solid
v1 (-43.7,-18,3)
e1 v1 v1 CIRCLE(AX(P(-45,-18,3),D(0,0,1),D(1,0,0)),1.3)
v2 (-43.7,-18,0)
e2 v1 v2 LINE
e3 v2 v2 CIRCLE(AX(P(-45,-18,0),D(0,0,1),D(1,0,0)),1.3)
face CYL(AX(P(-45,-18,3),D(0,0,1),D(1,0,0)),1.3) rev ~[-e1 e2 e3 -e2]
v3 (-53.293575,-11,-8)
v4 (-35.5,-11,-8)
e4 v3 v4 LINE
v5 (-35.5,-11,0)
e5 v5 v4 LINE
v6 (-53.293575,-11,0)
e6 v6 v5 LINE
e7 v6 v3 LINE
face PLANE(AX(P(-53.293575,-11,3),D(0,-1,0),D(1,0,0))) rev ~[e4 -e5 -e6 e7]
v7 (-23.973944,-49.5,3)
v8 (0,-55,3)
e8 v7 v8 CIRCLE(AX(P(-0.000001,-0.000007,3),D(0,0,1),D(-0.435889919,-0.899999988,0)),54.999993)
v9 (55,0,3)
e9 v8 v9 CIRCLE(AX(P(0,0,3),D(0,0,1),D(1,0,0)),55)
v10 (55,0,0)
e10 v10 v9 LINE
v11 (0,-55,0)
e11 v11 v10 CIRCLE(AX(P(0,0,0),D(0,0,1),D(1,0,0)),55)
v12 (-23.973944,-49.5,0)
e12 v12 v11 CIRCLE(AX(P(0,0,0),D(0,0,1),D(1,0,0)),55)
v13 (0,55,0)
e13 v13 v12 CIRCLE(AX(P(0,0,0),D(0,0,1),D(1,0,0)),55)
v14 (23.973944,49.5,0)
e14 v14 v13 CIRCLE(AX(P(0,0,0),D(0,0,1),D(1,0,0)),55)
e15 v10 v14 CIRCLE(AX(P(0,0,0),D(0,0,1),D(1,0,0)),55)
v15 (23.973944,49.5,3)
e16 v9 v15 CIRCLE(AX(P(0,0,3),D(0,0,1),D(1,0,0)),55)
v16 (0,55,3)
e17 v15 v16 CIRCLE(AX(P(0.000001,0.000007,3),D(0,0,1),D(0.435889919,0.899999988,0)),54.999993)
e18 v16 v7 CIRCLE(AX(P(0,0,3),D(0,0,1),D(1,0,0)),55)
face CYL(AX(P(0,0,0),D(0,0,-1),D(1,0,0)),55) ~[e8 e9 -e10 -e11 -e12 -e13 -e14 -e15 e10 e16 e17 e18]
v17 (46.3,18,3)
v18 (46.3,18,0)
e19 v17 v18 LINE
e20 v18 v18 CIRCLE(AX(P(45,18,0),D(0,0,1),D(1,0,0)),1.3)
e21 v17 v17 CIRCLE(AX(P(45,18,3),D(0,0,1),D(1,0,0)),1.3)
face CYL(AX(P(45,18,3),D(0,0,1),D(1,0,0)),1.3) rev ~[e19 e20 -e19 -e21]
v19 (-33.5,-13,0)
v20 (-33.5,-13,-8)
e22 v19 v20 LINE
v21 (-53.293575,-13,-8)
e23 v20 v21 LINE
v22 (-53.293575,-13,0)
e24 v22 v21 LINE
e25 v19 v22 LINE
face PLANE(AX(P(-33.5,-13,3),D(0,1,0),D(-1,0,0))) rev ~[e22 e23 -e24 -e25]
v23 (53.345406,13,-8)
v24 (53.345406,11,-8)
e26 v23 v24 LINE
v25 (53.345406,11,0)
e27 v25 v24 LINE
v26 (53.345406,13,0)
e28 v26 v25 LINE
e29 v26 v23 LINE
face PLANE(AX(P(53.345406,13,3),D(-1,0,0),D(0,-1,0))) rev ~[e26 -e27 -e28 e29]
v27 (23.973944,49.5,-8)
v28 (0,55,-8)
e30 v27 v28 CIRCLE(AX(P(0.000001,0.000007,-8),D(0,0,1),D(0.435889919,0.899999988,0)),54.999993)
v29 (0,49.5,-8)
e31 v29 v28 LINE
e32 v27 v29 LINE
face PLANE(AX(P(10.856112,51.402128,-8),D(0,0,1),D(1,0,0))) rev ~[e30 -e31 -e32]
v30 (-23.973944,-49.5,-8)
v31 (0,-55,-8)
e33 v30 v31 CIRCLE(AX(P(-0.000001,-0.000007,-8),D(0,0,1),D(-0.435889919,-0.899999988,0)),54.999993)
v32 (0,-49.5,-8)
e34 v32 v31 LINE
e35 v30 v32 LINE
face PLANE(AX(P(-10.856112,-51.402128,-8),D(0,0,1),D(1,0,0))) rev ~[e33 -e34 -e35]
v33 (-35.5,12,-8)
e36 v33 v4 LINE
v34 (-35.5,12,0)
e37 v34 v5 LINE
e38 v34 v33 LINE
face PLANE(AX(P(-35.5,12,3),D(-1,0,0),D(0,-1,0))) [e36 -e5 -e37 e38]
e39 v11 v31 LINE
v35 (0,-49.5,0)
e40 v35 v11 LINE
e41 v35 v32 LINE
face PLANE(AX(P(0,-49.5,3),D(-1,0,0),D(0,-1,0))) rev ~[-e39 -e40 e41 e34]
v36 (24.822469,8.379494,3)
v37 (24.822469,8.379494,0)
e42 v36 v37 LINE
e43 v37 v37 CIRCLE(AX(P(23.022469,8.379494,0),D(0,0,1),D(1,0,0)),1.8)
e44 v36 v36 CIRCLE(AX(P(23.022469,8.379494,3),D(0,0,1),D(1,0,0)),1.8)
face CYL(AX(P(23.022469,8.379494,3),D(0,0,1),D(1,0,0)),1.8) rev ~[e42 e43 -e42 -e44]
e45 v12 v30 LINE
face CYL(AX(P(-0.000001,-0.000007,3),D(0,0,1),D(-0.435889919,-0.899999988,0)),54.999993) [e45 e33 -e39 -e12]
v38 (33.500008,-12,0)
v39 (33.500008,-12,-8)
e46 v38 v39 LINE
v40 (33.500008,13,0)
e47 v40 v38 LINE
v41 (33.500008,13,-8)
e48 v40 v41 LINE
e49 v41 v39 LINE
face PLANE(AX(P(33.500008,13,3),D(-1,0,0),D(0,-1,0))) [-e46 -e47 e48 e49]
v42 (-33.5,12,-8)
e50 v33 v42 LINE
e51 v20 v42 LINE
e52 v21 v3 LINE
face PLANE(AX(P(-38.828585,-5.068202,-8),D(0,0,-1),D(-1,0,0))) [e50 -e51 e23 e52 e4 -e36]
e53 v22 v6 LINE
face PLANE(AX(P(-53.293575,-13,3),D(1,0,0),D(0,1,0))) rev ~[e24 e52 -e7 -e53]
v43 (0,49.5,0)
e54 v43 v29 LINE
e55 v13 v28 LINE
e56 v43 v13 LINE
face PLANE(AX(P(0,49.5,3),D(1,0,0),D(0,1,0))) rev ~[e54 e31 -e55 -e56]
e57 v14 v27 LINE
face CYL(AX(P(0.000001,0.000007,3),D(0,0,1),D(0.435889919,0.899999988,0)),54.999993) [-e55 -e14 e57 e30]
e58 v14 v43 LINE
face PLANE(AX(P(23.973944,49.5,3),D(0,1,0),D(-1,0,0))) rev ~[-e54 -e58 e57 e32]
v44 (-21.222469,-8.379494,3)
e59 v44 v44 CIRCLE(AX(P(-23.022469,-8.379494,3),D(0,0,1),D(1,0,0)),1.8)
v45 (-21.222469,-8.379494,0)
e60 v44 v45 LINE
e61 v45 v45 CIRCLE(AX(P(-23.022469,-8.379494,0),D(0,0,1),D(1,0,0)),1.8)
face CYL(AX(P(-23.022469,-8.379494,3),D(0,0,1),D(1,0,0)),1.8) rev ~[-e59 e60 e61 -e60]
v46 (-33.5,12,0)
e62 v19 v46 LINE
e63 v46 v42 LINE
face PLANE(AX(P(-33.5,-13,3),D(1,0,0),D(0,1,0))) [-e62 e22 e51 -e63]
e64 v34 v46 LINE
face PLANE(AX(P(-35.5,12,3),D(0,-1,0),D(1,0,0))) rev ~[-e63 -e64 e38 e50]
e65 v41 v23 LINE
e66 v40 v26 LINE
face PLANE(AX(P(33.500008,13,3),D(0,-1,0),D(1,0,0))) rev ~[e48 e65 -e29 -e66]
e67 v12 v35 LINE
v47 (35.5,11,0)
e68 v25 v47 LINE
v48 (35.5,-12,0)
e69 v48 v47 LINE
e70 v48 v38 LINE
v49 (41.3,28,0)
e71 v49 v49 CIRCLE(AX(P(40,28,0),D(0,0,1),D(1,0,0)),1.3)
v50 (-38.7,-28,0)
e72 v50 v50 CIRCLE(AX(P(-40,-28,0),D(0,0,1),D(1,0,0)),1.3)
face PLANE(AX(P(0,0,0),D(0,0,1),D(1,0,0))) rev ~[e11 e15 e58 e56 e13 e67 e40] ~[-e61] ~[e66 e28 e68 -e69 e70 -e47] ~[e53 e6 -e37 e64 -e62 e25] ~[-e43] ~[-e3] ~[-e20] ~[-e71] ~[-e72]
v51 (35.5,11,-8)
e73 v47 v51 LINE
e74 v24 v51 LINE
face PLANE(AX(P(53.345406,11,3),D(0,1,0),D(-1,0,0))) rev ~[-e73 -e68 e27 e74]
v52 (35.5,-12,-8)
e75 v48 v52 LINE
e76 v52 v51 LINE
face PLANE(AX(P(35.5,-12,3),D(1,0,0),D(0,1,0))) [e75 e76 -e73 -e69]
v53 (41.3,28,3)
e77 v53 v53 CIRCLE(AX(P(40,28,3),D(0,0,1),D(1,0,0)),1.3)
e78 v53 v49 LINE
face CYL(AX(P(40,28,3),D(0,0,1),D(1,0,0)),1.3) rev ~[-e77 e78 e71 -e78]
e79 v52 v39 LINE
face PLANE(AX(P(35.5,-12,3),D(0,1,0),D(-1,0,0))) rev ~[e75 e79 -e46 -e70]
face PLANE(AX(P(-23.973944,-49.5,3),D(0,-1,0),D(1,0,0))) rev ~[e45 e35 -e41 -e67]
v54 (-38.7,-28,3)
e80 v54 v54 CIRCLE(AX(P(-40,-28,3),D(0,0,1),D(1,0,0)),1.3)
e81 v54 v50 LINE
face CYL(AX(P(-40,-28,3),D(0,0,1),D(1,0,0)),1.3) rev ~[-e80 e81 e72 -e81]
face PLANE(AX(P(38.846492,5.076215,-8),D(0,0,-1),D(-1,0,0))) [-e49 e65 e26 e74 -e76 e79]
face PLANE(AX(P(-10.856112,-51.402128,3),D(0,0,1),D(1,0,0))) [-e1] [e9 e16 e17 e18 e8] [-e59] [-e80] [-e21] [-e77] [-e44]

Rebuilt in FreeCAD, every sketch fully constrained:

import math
import FreeCAD as App
import Part
import Sketcher
from FreeCAD import Vector

doc = App.newDocument("Part")
params = doc.addObject("Spreadsheet::Sheet", "Params")
for row, (alias, value) in enumerate([
    ("sketch1_diameter", "110 mm"),
    ("pad1_length", "3 mm"),
    ("sketch2_diameter", "2.6 mm"),
    ("sketch2_diameter2", "3.6 mm"),
    ("pocket1_length", "5 mm"),
    ("sketch3_width", "2 mm"),
    ("sketch3_height", "25 mm"),
    ("pad2_length", "11 mm"),
    ("sketch4_height", "5.5 mm"),
    ("pad3_length", "11 mm"),
], start=1):
    params.set(f"A{row}", alias)
    params.set(f"B{row}", "=" + value)
    params.setAlias(f"B{row}", alias)

body = doc.addObject("PartDesign::Body", "Body")

# Sketch on XY plane
sketch1 = doc.addObject("Sketcher::SketchObject", "Sketch")
body.addObject(sketch1)
sketch1.AttachmentSupport = (doc.XY_Plane, [""])
sketch1.MapMode = "FlatFace"
sketch1.addGeometry(Part.Circle(Vector(0, 0, 0), Vector(0, 0, 1), 55), False)
sketch1.addConstraint([
    Sketcher.Constraint("Coincident", 0, 3, -1, 1),
    Sketcher.Constraint("Diameter", 0, 110.0),
])
sketch1.setExpression("Constraints[1]", "Params.sketch1_diameter")
pad1 = doc.addObject("PartDesign::Pad", "Pad")
body.addObject(pad1)
pad1.Profile = sketch1
pad1.setExpression("Length", "Params.pad1_length")

# Sketch on XY plane
sketch2 = doc.addObject("Sketcher::SketchObject", "Sketch001")
body.addObject(sketch2)
sketch2.AttachmentSupport = (doc.XY_Plane, [""])
sketch2.MapMode = "FlatFace"
sketch2.AttachmentOffset = App.Placement(Vector(0, 0, 3), App.Rotation())
sketch2.addGeometry([
    Part.Circle(Vector(-45, -18, 0), Vector(0, 0, 1), 1.3),  # 0
    Part.Circle(Vector(45, 18, 0), Vector(0, 0, 1), 1.3),  # 1
    Part.Circle(Vector(-40, -28, 0), Vector(0, 0, 1), 1.3),  # 2
    Part.Circle(Vector(40, 28, 0), Vector(0, 0, 1), 1.3),  # 3
    Part.Circle(Vector(-23.022469, -8.379494, 0), Vector(0, 0, 1), 1.8),  # 4
    Part.Circle(Vector(23.022469, 8.379494, 0), Vector(0, 0, 1), 1.8),  # 5
], False)
sketch2.addConstraint([
    Sketcher.Constraint("Equal", 0, 1),
    Sketcher.Constraint("Equal", 1, 2),
    Sketcher.Constraint("Equal", 2, 3),
    Sketcher.Constraint("Equal", 4, 5),
    Sketcher.Constraint("Symmetric", 0, 3, 1, 3, -1, 1),
    Sketcher.Constraint("Symmetric", 2, 3, 3, 3, -1, 1),
    Sketcher.Constraint("Symmetric", 4, 3, 5, 3, -1, 1),
    Sketcher.Constraint("Diameter", 0, 2.6),
    Sketcher.Constraint("Diameter", 4, 3.6),
    Sketcher.Constraint("DistanceX", 0, 3, -1, 1, 45.0),
    Sketcher.Constraint("DistanceY", 0, 3, -1, 1, 18.0),
    Sketcher.Constraint("DistanceX", 2, 3, -1, 1, 40.0),
    Sketcher.Constraint("DistanceY", 2, 3, -1, 1, 28.0),
    Sketcher.Constraint("DistanceX", 4, 3, -1, 1, 23.022469),
    Sketcher.Constraint("DistanceY", 4, 3, -1, 1, 8.379494),
])
sketch2.setExpression("Constraints[7]", "Params.sketch2_diameter")
sketch2.setExpression("Constraints[8]", "Params.sketch2_diameter2")
pocket1 = doc.addObject("PartDesign::Pocket", "Pocket")
body.addObject(pocket1)
pocket1.Profile = sketch2
pocket1.setExpression("Length", "Params.pocket1_length")

# Sketch on XY plane
sketch3 = doc.addObject("Sketcher::SketchObject", "Sketch002")
body.addObject(sketch3)
sketch3.AttachmentSupport = (doc.XY_Plane, [""])
sketch3.MapMode = "FlatFace"
sketch3.AttachmentOffset = App.Placement(Vector(0, 0, 3), App.Rotation())
sketch3.addGeometry([
    Part.LineSegment(Vector(33.500008, 13, 0), Vector(33.500008, -12, 0)),  # 0
    Part.LineSegment(Vector(33.500008, -12, 0), Vector(35.5, -12, 0)),  # 1
    Part.LineSegment(Vector(35.5, -12, 0), Vector(35.5, 11, 0)),  # 2
    Part.LineSegment(Vector(35.5, 11, 0), Vector(53.345406, 11, 0)),  # 3
    Part.LineSegment(Vector(53.345406, 11, 0), Vector(53.345406, 13, 0)),  # 4
    Part.LineSegment(Vector(53.345406, 13, 0), Vector(33.500008, 13, 0)),  # 5
    Part.LineSegment(Vector(-33.5, -13, 0), Vector(-33.5, 12, 0)),  # 6
    Part.LineSegment(Vector(-33.5, 12, 0), Vector(-35.5, 12, 0)),  # 7
    Part.LineSegment(Vector(-35.5, 12, 0), Vector(-35.5, -11, 0)),  # 8
    Part.LineSegment(Vector(-35.5, -11, 0), Vector(-53.293575, -11, 0)),  # 9
    Part.LineSegment(Vector(-53.293575, -11, 0), Vector(-53.293575, -13, 0)),  # 10
    Part.LineSegment(Vector(-53.293575, -13, 0), Vector(-33.5, -13, 0)),  # 11
], False)
sketch3.addConstraint([
    Sketcher.Constraint("Coincident", 0, 2, 1, 1),
    Sketcher.Constraint("Coincident", 1, 2, 2, 1),
    Sketcher.Constraint("Coincident", 2, 2, 3, 1),
    Sketcher.Constraint("Coincident", 3, 2, 4, 1),
    Sketcher.Constraint("Coincident", 4, 2, 5, 1),
    Sketcher.Constraint("Coincident", 5, 2, 0, 1),
    Sketcher.Constraint("Coincident", 6, 2, 7, 1),
    Sketcher.Constraint("Coincident", 7, 2, 8, 1),
    Sketcher.Constraint("Coincident", 8, 2, 9, 1),
    Sketcher.Constraint("Coincident", 9, 2, 10, 1),
    Sketcher.Constraint("Coincident", 10, 2, 11, 1),
    Sketcher.Constraint("Coincident", 11, 2, 6, 1),
    Sketcher.Constraint("Vertical", 0),
    Sketcher.Constraint("Horizontal", 1),
    Sketcher.Constraint("Vertical", 2),
    Sketcher.Constraint("Horizontal", 3),
    Sketcher.Constraint("Vertical", 4),
    Sketcher.Constraint("Horizontal", 5),
    Sketcher.Constraint("Vertical", 6),
    Sketcher.Constraint("Horizontal", 7),
    Sketcher.Constraint("Vertical", 8),
    Sketcher.Constraint("Horizontal", 9),
    Sketcher.Constraint("Vertical", 10),
    Sketcher.Constraint("Horizontal", 11),
    Sketcher.Constraint("Symmetric", 0, 2, 6, 2, -1, 1),
    Sketcher.Constraint("Symmetric", 2, 2, 8, 2, -1, 1),
    Sketcher.Constraint("Equal", 7, 4),
    Sketcher.Constraint("Equal", 0, 6),
    Sketcher.Constraint("DistanceX", 7, 2, 7, 1, 2.0),
    Sketcher.Constraint("DistanceY", 0, 2, 0, 1, 25.0),
    Sketcher.Constraint("DistanceY", 0, 2, -1, 1, 12.0),
    Sketcher.Constraint("DistanceX", 6, 2, 2, 2, 69.0),
    Sketcher.Constraint("DistanceX", 3, 1, 3, 2, 17.845406),
    Sketcher.Constraint("DistanceX", 9, 2, 9, 1, 17.793575),
])
sketch3.setExpression("Constraints[28]", "Params.sketch3_width")
sketch3.setExpression("Constraints[29]", "Params.sketch3_height")
pad2 = doc.addObject("PartDesign::Pad", "Pad001")
body.addObject(pad2)
pad2.Profile = sketch3
pad2.setExpression("Length", "Params.pad2_length")
pad2.Reversed = True

# Sketch on XY plane
sketch4 = doc.addObject("Sketcher::SketchObject", "Sketch003")
body.addObject(sketch4)
sketch4.AttachmentSupport = (doc.XY_Plane, [""])
sketch4.MapMode = "FlatFace"
sketch4.AttachmentOffset = App.Placement(Vector(0, 0, 3), App.Rotation())
sketch4.addGeometry([
    Part.ArcOfCircle(Part.Circle(Vector(-0.000001, -0.000007, 0), Vector(0, 0, 1), 54.999993), math.radians(-115.841934), math.radians(-89.999999)),  # 0
    Part.LineSegment(Vector(0, -55, 0), Vector(0, -49.5, 0)),  # 1
    Part.LineSegment(Vector(0, -49.5, 0), Vector(-23.973944, -49.5, 0)),  # 2
    Part.ArcOfCircle(Part.Circle(Vector(0.000001, 0.000007, 0), Vector(0, 0, 1), 54.999993), math.radians(64.158066), math.radians(90.000001)),  # 3
    Part.LineSegment(Vector(0, 55, 0), Vector(0, 49.5, 0)),  # 4
    Part.LineSegment(Vector(0, 49.5, 0), Vector(23.973944, 49.5, 0)),  # 5
], False)
sketch4.addConstraint([
    Sketcher.Constraint("Coincident", 0, 2, 1, 1),
    Sketcher.Constraint("Coincident", 1, 2, 2, 1),
    Sketcher.Constraint("Coincident", 2, 2, 0, 1),
    Sketcher.Constraint("Coincident", 3, 2, 4, 1),
    Sketcher.Constraint("Coincident", 4, 2, 5, 1),
    Sketcher.Constraint("Coincident", 5, 2, 3, 1),
    Sketcher.Constraint("Vertical", 1),
    Sketcher.Constraint("Horizontal", 2),
    Sketcher.Constraint("Vertical", 4),
    Sketcher.Constraint("Horizontal", 5),
    Sketcher.Constraint("Coincident", 0, 3, -1, 1),
    Sketcher.Constraint("Coincident", 3, 3, -1, 1),
    Sketcher.Constraint("Equal", 0, 3),
    Sketcher.Constraint("Symmetric", 1, 2, 4, 2, -1, 1),
    Sketcher.Constraint("PointOnObject", 0, 2, -2),
    Sketcher.Constraint("DistanceY", 1, 1, 1, 2, 5.5),
    Sketcher.Constraint("DistanceY", 0, 2, -1, 1, 55.0),
])
sketch4.setExpression("Constraints[15]", "Params.sketch4_height")
pad3 = doc.addObject("PartDesign::Pad", "Pad002")
body.addObject(pad3)
pad3.Profile = sketch4
pad3.setExpression("Length", "Params.pad3_length")
pad3.Reversed = True

doc.recompute()
